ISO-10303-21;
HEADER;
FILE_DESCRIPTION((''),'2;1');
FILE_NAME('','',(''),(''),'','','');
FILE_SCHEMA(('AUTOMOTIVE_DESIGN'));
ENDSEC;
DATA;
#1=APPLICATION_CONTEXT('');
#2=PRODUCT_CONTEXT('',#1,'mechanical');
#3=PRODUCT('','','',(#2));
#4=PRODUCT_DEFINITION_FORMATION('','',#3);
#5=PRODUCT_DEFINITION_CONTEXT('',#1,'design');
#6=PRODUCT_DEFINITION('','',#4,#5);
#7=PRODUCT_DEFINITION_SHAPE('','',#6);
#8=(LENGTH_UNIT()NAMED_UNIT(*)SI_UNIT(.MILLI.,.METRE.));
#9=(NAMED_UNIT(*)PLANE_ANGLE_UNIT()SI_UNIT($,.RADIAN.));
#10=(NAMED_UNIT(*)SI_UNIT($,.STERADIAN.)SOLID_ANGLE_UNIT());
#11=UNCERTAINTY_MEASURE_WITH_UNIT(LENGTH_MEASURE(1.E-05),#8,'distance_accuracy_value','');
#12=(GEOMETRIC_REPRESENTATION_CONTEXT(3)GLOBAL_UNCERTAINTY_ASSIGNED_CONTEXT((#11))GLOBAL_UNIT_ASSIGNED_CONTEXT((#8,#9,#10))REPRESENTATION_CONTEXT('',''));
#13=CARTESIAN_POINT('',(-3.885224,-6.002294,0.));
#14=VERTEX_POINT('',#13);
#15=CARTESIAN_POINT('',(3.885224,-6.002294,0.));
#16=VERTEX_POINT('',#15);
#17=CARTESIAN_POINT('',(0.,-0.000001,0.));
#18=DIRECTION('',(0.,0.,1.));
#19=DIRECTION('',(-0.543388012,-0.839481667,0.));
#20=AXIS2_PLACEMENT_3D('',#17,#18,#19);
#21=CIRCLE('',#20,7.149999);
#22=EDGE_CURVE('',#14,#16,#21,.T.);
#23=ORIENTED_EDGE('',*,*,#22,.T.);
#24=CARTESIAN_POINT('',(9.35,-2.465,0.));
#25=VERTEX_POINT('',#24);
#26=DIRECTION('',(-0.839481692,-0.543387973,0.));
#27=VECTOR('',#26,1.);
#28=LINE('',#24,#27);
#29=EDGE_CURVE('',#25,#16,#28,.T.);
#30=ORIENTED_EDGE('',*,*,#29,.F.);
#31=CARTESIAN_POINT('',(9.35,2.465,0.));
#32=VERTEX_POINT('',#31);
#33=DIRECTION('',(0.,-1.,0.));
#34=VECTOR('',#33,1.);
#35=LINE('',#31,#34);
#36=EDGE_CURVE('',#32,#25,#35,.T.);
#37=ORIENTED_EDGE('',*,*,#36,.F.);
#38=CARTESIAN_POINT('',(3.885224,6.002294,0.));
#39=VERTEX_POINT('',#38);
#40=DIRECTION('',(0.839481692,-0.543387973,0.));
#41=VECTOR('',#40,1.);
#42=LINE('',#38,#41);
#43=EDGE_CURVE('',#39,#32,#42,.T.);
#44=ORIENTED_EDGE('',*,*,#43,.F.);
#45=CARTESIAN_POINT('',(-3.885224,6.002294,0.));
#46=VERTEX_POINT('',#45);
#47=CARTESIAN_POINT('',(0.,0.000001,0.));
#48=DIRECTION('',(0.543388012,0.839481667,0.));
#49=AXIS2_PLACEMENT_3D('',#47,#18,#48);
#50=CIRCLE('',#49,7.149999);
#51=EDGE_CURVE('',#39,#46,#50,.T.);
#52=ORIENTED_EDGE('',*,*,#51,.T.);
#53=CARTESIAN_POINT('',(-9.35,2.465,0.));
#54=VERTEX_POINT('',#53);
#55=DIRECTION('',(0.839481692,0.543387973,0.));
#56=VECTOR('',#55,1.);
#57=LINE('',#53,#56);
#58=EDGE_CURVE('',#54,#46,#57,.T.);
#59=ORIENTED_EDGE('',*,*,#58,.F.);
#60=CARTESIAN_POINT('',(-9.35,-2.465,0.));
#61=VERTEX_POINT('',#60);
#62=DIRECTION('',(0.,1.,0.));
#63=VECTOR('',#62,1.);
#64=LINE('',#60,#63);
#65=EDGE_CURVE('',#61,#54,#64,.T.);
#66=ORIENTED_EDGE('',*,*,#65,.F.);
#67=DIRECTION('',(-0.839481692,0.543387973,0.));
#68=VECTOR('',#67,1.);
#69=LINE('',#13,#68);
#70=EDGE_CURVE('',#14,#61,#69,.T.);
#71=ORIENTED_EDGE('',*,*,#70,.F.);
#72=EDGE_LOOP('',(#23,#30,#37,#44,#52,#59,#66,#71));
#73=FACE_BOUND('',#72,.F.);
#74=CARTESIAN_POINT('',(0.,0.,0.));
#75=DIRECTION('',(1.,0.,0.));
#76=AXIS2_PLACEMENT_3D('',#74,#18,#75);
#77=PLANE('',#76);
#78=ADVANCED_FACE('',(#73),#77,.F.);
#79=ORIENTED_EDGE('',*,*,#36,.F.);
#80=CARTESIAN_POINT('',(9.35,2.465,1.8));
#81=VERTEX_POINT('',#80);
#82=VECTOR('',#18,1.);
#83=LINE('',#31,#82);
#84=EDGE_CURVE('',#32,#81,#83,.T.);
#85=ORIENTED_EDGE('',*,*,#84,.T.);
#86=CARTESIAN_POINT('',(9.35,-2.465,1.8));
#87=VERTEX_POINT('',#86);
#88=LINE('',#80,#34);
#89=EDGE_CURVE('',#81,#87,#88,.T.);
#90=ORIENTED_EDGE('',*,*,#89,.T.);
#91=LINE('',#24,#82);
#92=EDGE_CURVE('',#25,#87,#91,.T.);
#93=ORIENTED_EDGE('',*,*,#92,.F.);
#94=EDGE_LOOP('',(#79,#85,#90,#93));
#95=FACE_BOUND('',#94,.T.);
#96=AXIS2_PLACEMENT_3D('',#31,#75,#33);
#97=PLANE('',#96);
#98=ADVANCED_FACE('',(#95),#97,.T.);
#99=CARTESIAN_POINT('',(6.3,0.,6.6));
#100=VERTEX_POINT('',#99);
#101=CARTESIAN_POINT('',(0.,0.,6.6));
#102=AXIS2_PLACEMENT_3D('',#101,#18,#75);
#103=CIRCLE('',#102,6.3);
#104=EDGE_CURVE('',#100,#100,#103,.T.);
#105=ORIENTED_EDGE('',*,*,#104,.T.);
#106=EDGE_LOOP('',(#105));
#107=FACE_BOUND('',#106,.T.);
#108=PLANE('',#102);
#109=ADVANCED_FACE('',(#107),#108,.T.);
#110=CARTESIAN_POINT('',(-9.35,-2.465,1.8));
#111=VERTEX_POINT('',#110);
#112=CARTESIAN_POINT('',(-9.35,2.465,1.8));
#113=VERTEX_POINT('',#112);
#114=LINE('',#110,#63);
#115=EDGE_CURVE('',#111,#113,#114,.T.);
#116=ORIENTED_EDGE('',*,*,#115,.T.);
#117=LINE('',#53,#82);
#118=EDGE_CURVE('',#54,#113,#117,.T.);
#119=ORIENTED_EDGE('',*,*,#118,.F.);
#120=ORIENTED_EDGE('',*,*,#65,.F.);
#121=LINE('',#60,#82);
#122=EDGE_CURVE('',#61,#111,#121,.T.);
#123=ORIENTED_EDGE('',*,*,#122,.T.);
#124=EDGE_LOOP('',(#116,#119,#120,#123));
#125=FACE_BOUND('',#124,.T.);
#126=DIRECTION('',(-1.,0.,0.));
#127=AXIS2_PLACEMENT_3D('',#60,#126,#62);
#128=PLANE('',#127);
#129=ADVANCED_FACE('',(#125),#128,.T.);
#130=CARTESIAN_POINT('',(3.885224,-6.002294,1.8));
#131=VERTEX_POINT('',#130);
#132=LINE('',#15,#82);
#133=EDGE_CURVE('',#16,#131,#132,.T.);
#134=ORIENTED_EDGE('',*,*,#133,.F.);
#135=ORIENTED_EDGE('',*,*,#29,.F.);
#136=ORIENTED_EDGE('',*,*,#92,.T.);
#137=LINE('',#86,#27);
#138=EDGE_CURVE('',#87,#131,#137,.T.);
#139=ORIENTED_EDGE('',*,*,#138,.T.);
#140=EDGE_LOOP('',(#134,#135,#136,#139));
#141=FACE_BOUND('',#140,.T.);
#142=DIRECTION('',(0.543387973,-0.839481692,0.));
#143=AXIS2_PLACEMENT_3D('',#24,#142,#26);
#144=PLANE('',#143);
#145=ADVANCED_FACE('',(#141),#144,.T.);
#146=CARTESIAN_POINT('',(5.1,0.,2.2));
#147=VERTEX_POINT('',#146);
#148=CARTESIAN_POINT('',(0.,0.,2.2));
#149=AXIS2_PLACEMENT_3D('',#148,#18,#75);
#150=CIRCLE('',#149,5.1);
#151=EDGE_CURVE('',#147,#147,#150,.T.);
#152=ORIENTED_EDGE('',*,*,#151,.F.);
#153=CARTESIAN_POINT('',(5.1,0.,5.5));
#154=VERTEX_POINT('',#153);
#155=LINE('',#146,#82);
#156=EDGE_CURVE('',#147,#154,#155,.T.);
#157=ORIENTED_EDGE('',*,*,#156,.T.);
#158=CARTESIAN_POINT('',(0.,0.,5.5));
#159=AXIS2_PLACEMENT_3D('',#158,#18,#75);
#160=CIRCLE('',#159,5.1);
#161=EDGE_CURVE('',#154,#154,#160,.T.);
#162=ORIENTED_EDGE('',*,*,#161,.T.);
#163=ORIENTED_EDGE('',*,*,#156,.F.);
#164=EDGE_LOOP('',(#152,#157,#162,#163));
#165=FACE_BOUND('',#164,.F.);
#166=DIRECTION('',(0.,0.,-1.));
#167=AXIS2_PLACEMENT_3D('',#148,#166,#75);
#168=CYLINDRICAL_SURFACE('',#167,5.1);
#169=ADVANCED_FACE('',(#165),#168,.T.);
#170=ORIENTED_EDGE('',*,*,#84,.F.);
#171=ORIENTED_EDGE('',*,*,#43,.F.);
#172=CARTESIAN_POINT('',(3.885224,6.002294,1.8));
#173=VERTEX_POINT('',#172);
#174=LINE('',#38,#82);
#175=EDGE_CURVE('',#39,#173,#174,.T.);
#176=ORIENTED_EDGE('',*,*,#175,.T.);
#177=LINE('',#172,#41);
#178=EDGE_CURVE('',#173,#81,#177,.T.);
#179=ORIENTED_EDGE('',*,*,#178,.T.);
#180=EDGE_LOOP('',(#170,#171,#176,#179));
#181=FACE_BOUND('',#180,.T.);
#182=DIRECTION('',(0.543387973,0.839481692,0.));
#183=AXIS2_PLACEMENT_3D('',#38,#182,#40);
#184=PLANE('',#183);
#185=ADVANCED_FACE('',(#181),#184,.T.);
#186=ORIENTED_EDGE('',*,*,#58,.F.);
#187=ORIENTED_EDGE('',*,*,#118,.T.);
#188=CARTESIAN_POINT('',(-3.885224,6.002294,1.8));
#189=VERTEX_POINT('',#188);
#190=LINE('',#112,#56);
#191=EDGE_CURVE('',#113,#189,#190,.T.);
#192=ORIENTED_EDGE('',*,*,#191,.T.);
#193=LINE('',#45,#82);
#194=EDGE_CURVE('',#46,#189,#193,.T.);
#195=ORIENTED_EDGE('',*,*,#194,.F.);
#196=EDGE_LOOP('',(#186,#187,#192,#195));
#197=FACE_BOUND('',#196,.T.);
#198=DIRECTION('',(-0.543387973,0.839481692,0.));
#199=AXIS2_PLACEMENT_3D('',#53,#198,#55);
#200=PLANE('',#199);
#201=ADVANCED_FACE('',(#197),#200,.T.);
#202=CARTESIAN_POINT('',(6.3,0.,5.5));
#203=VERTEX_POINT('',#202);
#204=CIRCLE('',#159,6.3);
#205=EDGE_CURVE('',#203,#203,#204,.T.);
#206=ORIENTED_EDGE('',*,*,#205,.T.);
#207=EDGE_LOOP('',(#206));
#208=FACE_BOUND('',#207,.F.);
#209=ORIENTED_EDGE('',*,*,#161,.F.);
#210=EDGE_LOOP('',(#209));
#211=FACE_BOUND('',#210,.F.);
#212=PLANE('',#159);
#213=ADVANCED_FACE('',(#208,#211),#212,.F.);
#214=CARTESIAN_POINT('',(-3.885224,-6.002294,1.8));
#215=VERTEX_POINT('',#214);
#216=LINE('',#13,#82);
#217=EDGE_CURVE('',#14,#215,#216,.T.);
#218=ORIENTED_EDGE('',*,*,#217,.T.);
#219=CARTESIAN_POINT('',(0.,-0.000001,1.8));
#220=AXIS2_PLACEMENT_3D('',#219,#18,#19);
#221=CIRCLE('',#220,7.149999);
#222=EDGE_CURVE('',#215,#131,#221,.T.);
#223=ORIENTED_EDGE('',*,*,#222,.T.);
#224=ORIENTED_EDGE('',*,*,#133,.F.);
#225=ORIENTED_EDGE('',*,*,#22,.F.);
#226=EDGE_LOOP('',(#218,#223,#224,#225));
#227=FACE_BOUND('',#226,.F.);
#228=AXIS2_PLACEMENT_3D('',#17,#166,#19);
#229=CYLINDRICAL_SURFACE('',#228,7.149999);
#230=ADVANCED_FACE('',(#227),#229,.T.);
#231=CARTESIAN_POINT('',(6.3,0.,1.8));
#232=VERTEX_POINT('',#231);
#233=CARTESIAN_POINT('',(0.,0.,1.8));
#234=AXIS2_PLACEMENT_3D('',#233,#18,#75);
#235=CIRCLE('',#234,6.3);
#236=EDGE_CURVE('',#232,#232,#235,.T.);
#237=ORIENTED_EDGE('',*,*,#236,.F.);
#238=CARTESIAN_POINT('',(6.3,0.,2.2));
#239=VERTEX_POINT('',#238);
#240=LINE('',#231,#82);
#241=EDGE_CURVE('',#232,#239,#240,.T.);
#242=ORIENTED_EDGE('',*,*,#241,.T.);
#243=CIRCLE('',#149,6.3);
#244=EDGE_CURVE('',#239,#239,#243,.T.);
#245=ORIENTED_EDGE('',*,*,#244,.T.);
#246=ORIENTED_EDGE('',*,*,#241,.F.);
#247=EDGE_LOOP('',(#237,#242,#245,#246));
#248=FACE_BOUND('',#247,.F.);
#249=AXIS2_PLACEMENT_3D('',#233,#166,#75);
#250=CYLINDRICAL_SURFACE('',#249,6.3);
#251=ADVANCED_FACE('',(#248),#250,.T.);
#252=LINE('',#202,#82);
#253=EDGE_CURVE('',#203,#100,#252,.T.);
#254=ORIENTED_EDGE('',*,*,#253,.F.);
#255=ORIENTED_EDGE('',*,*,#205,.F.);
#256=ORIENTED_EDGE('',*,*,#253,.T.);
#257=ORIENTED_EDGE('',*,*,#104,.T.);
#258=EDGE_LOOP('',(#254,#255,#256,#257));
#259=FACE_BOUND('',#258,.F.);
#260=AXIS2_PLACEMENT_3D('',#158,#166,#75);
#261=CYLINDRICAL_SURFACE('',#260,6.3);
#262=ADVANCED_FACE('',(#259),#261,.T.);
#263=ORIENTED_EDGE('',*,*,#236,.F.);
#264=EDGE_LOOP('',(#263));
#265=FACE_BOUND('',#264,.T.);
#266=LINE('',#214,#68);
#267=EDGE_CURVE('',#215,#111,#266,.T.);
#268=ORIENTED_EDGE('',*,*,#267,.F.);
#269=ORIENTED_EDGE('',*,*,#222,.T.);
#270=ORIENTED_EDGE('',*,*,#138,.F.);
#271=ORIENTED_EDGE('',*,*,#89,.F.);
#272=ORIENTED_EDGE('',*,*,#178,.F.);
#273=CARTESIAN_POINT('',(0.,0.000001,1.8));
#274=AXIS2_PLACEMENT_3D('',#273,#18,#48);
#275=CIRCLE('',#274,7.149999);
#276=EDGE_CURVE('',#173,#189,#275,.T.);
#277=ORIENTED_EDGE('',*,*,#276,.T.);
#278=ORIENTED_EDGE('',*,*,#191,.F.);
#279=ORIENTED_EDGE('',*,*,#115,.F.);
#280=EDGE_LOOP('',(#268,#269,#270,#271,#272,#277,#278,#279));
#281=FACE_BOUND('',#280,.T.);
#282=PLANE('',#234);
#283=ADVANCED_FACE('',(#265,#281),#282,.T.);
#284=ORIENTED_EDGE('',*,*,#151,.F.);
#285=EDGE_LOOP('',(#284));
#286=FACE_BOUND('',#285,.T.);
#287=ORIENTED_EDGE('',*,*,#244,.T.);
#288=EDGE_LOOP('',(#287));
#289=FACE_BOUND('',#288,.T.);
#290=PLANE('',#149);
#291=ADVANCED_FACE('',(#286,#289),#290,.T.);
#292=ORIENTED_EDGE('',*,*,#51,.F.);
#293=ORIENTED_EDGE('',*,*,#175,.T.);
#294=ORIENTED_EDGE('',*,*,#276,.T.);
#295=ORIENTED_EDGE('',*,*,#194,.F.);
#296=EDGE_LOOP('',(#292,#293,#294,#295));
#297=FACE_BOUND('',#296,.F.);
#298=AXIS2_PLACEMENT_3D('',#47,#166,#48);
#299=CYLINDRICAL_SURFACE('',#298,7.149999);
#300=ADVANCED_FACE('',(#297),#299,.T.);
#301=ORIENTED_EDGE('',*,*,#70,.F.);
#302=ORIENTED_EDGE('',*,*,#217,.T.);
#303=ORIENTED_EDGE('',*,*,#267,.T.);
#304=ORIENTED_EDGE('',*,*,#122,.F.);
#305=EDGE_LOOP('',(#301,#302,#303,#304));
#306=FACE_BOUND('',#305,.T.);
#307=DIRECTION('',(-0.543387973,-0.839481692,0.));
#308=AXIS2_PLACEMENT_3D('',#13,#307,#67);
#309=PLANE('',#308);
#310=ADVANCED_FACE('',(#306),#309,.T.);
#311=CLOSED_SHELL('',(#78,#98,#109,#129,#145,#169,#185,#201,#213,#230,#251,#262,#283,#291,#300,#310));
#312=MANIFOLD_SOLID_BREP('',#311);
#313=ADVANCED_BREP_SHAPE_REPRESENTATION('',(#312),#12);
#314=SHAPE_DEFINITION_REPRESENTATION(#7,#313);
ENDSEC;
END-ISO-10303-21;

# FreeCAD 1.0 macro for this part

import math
import FreeCAD as App
import Part
import Sketcher
Q = App.Units.Quantity

doc = App.newDocument("Part")
params = doc.addObject("Spreadsheet::Sheet", "Params")
for row, (alias, value) in enumerate([
    ("sketch1_radius", "7.149999 mm"),
    ("sketch1_height", "4.93 mm"),
    ("pad1_length", "1.8 mm"),
    ("sketch2_diameter", "12.6 mm"),
    ("pad2_length", "0.4 mm"),
    ("sketch3_diameter", "10.2 mm"),
    ("pad3_length", "3.3 mm"),
    ("sketch4_diameter", "12.6 mm"),
    ("pad4_length", "1.1 mm"),
], start=1):
    params.set(f"A{row}", alias)
    params.set(f"B{row}", "=" + value)
    params.setAlias(f"B{row}", alias)

body = doc.addObject("PartDesign::Body", "Body")

# Sketch on XY plane
sketch1 = doc.addObject("Sketcher::SketchObject", "Sketch")
body.addObject(sketch1)
sketch1.AttachmentSupport = (doc.XY_Plane, [""])
sketch1.MapMode = "FlatFace"
sketch1.addGeometry([
    Part.ArcOfCircle(Part.Circle(App.Vector(0, 0, 0), App.Vector(0, 0, 1), 7.1), math.radians(57), math.radians(123)),  # 0
    Part.LineSegment(App.Vector(-3.9, 6, 0), App.Vector(-9.3, 2.5, 0)),  # 1
    Part.LineSegment(App.Vector(-9.3, 2.5, 0), App.Vector(-9.3, -2.5, 0)),  # 2
    Part.LineSegment(App.Vector(-9.3, -2.5, 0), App.Vector(-3.9, -6, 0)),  # 3
    Part.ArcOfCircle(Part.Circle(App.Vector(0, 0, 0), App.Vector(0, 0, 1), 7.1), math.radians(-123), math.radians(-57)),  # 4
    Part.LineSegment(App.Vector(3.9, -6, 0), App.Vector(9.3, -2.5, 0)),  # 5
    Part.LineSegment(App.Vector(9.3, -2.5, 0), App.Vector(9.3, 2.5, 0)),  # 6
    Part.LineSegment(App.Vector(9.3, 2.5, 0), App.Vector(3.9, 6, 0)),  # 7
], False)
sketch1.addConstraint([
    Sketcher.Constraint("Tangent", 0, 2, 1, 1),
    Sketcher.Constraint("Coincident", 1, 2, 2, 1),
    Sketcher.Constraint("Coincident", 2, 2, 3, 1),
    Sketcher.Constraint("Tangent", 3, 2, 4, 1),
    Sketcher.Constraint("Tangent", 4, 2, 5, 1),
    Sketcher.Constraint("Coincident", 5, 2, 6, 1),
    Sketcher.Constraint("Coincident", 6, 2, 7, 1),
    Sketcher.Constraint("Tangent", 7, 2, 0, 1),
    Sketcher.Constraint("Vertical", 2),
    Sketcher.Constraint("Vertical", 6),
    Sketcher.Constraint("Coincident", 0, 3, -1, 1),
    Sketcher.Constraint("Coincident", 4, 3, -1, 1),
    Sketcher.Constraint("Equal", 0, 4),
    Sketcher.Constraint("Symmetric", 1, 2, 5, 2, -1, 1),
    Sketcher.Constraint("Parallel", 3, 7),
    Sketcher.Constraint("Horizontal", 3, 2, 4, 2),
    Sketcher.Constraint("Radius", 0, Q("7.149999 mm")),
    Sketcher.Constraint("DistanceY", 2, 2, 2, 1, Q("4.93 mm")),
    Sketcher.Constraint("DistanceX", 1, 2, -1, 1, Q("9.35 mm")),
])
sketch1.setExpression("Constraints[16]", "Params.sketch1_radius")
sketch1.setExpression("Constraints[17]", "Params.sketch1_height")
pad1 = doc.addObject("PartDesign::Pad", "Pad")
body.addObject(pad1)
pad1.Profile = sketch1
pad1.setExpression("Length", "Params.pad1_length")

# Sketch on XY plane
sketch2 = doc.addObject("Sketcher::SketchObject", "Sketch001")
body.addObject(sketch2)
sketch2.AttachmentSupport = (doc.XY_Plane, [""])
sketch2.MapMode = "FlatFace"
sketch2.AttachmentOffset = App.Placement(App.Vector(0, 0, 1.8), App.Rotation())
sketch2.addGeometry(Part.Circle(App.Vector(0, 0, 0), App.Vector(0, 0, 1), 6), False)
sketch2.addConstraint([
    Sketcher.Constraint("Coincident", 0, 3, -1, 1),
    Sketcher.Constraint("Diameter", 0, Q("12.6 mm")),
])
sketch2.setExpression("Constraints[1]", "Params.sketch2_diameter")
pad2 = doc.addObject("PartDesign::Pad", "Pad001")
body.addObject(pad2)
pad2.Profile = sketch2
pad2.setExpression("Length", "Params.pad2_length")

# Sketch on XY plane
sketch3 = doc.addObject("Sketcher::SketchObject", "Sketch002")
body.addObject(sketch3)
sketch3.AttachmentSupport = (doc.XY_Plane, [""])
sketch3.MapMode = "FlatFace"
sketch3.AttachmentOffset = App.Placement(App.Vector(0, 0, 2.2), App.Rotation())
sketch3.addGeometry(Part.Circle(App.Vector(0, 0, 0), App.Vector(0, 0, 1), 5), False)
sketch3.addConstraint([
    Sketcher.Constraint("Coincident", 0, 3, -1, 1),
    Sketcher.Constraint("Diameter", 0, Q("10.2 mm")),
])
sketch3.setExpression("Constraints[1]", "Params.sketch3_diameter")
pad3 = doc.addObject("PartDesign::Pad", "Pad002")
body.addObject(pad3)
pad3.Profile = sketch3
pad3.setExpression("Length", "Params.pad3_length")

# Sketch on XY plane
sketch4 = doc.addObject("Sketcher::SketchObject", "Sketch003")
body.addObject(sketch4)
sketch4.AttachmentSupport = (doc.XY_Plane, [""])
sketch4.MapMode = "FlatFace"
sketch4.AttachmentOffset = App.Placement(App.Vector(0, 0, 5.5), App.Rotation())
sketch4.addGeometry(Part.Circle(App.Vector(0, 0, 0), App.Vector(0, 0, 1), 6), False)
sketch4.addConstraint([
    Sketcher.Constraint("Coincident", 0, 3, -1, 1),
    Sketcher.Constraint("Diameter", 0, Q("12.6 mm")),
])
sketch4.setExpression("Constraints[1]", "Params.sketch4_diameter")
pad4 = doc.addObject("PartDesign::Pad", "Pad003")
body.addObject(pad4)
pad4.Profile = sketch4
pad4.setExpression("Length", "Params.pad4_length")

doc.recompute()
